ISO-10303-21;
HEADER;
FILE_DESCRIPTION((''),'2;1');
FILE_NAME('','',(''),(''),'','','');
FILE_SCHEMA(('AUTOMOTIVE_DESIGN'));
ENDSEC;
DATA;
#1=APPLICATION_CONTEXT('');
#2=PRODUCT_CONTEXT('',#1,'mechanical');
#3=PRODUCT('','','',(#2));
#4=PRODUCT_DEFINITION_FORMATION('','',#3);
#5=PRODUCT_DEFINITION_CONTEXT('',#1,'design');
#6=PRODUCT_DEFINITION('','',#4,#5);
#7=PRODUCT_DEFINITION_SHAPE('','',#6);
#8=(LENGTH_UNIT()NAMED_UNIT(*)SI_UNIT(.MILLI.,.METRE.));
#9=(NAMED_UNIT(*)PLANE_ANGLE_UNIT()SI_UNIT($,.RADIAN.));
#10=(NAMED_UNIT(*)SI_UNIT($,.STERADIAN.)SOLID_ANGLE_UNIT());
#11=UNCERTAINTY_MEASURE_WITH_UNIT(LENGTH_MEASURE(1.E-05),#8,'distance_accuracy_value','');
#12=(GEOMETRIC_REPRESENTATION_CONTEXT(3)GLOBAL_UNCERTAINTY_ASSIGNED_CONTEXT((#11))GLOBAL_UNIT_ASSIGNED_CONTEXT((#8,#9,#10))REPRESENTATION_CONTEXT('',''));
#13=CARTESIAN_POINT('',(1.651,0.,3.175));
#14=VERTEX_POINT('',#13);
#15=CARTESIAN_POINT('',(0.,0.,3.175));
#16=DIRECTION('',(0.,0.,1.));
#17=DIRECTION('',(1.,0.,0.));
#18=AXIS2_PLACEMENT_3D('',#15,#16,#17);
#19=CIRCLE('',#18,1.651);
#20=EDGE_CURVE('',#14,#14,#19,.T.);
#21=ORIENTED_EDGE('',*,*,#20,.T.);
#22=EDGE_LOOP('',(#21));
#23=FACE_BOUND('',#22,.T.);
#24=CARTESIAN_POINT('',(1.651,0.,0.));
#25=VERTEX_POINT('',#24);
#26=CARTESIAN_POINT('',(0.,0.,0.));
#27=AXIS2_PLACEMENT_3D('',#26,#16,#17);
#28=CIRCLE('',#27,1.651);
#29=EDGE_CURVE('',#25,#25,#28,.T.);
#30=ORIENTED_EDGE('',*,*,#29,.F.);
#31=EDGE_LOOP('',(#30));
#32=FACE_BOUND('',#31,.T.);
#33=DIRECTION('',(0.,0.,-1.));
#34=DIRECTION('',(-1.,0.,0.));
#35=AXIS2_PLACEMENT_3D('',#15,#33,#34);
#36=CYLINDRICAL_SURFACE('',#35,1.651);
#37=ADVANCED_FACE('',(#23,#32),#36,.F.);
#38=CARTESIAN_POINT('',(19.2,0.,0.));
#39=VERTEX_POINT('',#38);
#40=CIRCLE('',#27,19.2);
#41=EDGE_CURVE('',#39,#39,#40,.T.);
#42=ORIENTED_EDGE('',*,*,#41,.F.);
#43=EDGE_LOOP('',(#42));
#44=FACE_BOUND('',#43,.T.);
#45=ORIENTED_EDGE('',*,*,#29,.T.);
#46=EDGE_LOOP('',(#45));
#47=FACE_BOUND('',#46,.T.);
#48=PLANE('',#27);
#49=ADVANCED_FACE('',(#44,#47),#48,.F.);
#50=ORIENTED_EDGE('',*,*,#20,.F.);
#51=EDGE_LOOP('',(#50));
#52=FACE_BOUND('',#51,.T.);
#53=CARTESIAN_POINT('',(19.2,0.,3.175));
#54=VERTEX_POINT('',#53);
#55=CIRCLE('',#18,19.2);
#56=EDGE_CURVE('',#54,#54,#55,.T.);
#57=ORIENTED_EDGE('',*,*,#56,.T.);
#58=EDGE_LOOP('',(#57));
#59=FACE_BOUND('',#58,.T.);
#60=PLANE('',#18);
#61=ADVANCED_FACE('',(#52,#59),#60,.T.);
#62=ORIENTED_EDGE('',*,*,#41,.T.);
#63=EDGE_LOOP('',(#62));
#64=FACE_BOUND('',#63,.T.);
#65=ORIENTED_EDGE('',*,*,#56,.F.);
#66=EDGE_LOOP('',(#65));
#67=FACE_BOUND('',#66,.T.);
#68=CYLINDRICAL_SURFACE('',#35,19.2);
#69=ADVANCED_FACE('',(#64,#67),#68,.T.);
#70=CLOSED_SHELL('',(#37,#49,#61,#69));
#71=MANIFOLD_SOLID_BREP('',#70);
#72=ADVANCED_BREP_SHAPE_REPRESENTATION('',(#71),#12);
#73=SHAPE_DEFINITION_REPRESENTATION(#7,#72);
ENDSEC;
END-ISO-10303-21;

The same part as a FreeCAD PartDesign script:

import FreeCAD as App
import Part
import Sketcher

V = App.Vector
Q = App.Units.Quantity

doc = App.newDocument("Part")
body = doc.addObject("PartDesign::Body", "Body")

# Sketch on XY plane
sketch1 = body.newObject("Sketcher::SketchObject", "Sketch")
sketch1.AttachmentSupport = (doc.getObject("XY_Plane"), [""])
sketch1.MapMode = "FlatFace"
sketch1.addGeometry([
    Part.Circle(V(0, 0, 0), V(0, 0, 1), 19.2),
    Part.Circle(V(0, 0, 0), V(0, 0, 1), 1.7),
    Part.Circle(V(7.6, -3.2, 0), V(0, 0, 1), 6.2),
], False)
sketch1.addConstraint([
    Sketcher.Constraint("Coincident", 0, 3, -1, 1),
    Sketcher.Constraint("Coincident", 1, 3, -1, 1),
    Sketcher.Constraint("Diameter", 1, Q("0.13 in")),
    Sketcher.Constraint("DistanceX", -1, 1, 2, 3, Q("0.3 in")),
    Sketcher.Constraint("Diameter", 0, Q("38.4 mm")),
    Sketcher.Constraint("Diameter", 2, Q("12.472109 mm")),
    Sketcher.Constraint("DistanceY", 2, 3, -1, 1, Q("0.125 in")),
])
pad1 = body.newObject("PartDesign::Pad", "Pad")
pad1.Profile = sketch1
pad1.Length = Q("0.125 in")

# Sketch on XY plane
sketch2 = body.newObject("Sketcher::SketchObject", "Sketch001")
sketch2.AttachmentSupport = (doc.getObject("XY_Plane"), [""])
sketch2.MapMode = "FlatFace"
sketch2.addGeometry(Part.Circle(V(8, -3, 0), V(0, 0, 1), 6), False)
sketch2.addConstraint([
    Sketcher.Constraint("DistanceX", -1, 1, 0, 3, Q("0.3 in")),
    Sketcher.Constraint("Diameter", 0, Q("12.472109 mm")),
    Sketcher.Constraint("DistanceY", 0, 3, -1, 1, Q("0.125 in")),
])
pad2 = body.newObject("PartDesign::Pad", "Pad001")
pad2.Profile = sketch2
pad2.Length = Q("0.125 in")

doc.recompute()
